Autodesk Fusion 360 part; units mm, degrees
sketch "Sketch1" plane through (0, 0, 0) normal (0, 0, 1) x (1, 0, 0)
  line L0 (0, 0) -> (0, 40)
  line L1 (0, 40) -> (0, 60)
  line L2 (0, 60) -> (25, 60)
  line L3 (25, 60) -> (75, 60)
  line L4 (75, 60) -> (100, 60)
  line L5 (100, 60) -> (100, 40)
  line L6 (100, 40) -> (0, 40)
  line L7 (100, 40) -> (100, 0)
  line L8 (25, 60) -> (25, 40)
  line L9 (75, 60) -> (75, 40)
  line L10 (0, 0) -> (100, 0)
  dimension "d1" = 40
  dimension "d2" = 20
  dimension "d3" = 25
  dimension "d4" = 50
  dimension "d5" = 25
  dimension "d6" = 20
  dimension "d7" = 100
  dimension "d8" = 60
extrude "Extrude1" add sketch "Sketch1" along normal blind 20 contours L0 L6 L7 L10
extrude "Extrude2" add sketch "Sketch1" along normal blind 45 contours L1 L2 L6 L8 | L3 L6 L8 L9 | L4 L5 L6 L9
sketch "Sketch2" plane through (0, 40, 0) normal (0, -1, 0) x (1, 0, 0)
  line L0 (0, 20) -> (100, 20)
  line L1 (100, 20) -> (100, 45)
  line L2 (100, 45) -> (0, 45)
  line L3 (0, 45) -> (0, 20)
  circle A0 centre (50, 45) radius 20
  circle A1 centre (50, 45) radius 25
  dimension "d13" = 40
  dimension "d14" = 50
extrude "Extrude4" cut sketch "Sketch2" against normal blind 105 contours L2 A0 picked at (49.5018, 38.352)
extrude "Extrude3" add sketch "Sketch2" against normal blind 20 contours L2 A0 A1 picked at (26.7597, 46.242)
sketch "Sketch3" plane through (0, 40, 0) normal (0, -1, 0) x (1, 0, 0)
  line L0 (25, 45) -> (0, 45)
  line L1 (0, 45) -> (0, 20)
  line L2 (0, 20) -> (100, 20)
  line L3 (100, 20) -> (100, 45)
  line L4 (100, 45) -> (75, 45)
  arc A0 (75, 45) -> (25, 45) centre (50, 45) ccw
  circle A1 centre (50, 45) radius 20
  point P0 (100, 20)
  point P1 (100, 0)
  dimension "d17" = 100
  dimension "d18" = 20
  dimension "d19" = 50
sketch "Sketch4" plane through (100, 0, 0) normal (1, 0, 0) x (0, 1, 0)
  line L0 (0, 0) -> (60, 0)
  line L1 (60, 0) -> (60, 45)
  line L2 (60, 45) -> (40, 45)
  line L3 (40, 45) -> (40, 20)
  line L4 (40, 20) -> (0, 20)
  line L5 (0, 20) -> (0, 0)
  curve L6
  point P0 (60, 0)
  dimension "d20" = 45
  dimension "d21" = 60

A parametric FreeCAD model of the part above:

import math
import FreeCAD as App
import Part
import Sketcher

V = App.Vector


def add_polygon(sketch, points):
    """Adds a closed chain of lines whose ends are joined by coincident constraints."""
    first, n = sketch.GeometryCount, len(points)
    for a, b in zip(points, points[1:] + points[:1]):
        sketch.addGeometry(Part.LineSegment(App.Vector(*a, 0), App.Vector(*b, 0)), False)
    for i in range(n):
        sketch.addConstraint(Sketcher.Constraint("Coincident", first + i, 2, first + (i + 1) % n, 1))

doc = App.newDocument("Part")
body = doc.addObject("PartDesign::Body", "Body")

sketch1 = doc.addObject("Sketcher::SketchObject", "Sketch")
body.addObject(sketch1)
sketch1.AttachmentSupport = (doc.XY_Plane, [""])
sketch1.MapMode = "FlatFace"
add_polygon(sketch1, [(0, 40), (0, 0), (100, 0), (100, 40)])
sketch1.addConstraint(Sketcher.Constraint("Vertical", 0))
sketch1.addConstraint(Sketcher.Constraint("Horizontal", 1))
sketch1.addConstraint(Sketcher.Constraint("Vertical", 2))
sketch1.addConstraint(Sketcher.Constraint("Horizontal", 3))
sketch1.addConstraint(Sketcher.Constraint("Coincident", 0, 2, -1, 1))
sketch1.addConstraint(Sketcher.Constraint("DistanceX", 1, 1, 1, 2, 100.0))
sketch1.addConstraint(Sketcher.Constraint("DistanceY", 0, 2, 0, 1, 40.0))
pad1 = doc.addObject("PartDesign::Pad", "Pad")
body.addObject(pad1)
pad1.Profile = sketch1
pad1.Length = 20

sketch2 = doc.addObject("Sketcher::SketchObject", "Sketch001")
body.addObject(sketch2)
sketch2.AttachmentSupport = (doc.XY_Plane, [""])
sketch2.MapMode = "FlatFace"
add_polygon(sketch2, [(0, 60), (0, 40), (100, 40), (100, 60)])
sketch2.addConstraint(Sketcher.Constraint("Vertical", 0))
sketch2.addConstraint(Sketcher.Constraint("Horizontal", 1))
sketch2.addConstraint(Sketcher.Constraint("Vertical", 2))
sketch2.addConstraint(Sketcher.Constraint("Horizontal", 3))
sketch2.addConstraint(Sketcher.Constraint("PointOnObject", 0, 2, -2))
sketch2.addConstraint(Sketcher.Constraint("DistanceX", 1, 1, 1, 2, 100.0))
sketch2.addConstraint(Sketcher.Constraint("DistanceY", 0, 2, 0, 1, 20.0))
sketch2.addConstraint(Sketcher.Constraint("DistanceY", -1, 1, 0, 2, 40.0))
pad2 = doc.addObject("PartDesign::Pad", "Pad001")
body.addObject(pad2)
pad2.Profile = sketch2
pad2.Length = 45

sketch3 = doc.addObject("Sketcher::SketchObject", "Sketch002")
body.addObject(sketch3)
sketch3.AttachmentSupport = (doc.XZ_Plane, [""])
sketch3.MapMode = "FlatFace"
sketch3.AttachmentOffset = App.Placement(V(0, 0, -40), App.Rotation())
sketch3.addGeometry(Part.LineSegment(V(70, 45, 0), V(30, 45, 0)), False)
sketch3.addGeometry(Part.ArcOfCircle(Part.Circle(V(50, 45, 0), V(0, 0, 1), 20), math.radians(180), math.radians(360)), False)
sketch3.addConstraint(Sketcher.Constraint("Coincident", 0, 1, 1, 2))
sketch3.addConstraint(Sketcher.Constraint("Coincident", 1, 1, 0, 2))
sketch3.addConstraint(Sketcher.Constraint("Horizontal", 0))
sketch3.addConstraint(Sketcher.Constraint("Horizontal", 1, 3, 0, 1))
sketch3.addConstraint(Sketcher.Constraint("Radius", 1, 20.0))
sketch3.addConstraint(Sketcher.Constraint("DistanceX", -1, 1, 1, 3, 50.0))
sketch3.addConstraint(Sketcher.Constraint("DistanceY", -1, 1, 1, 3, 45.0))
pocket1 = doc.addObject("PartDesign::Pocket", "Pocket")
body.addObject(pocket1)
pocket1.Profile = sketch3
pocket1.Length = 105

sketch4 = doc.addObject("Sketcher::SketchObject", "Sketch003")
body.addObject(sketch4)
sketch4.AttachmentSupport = (doc.XZ_Plane, [""])
sketch4.MapMode = "FlatFace"
sketch4.AttachmentOffset = App.Placement(V(0, 0, -40), App.Rotation())
sketch4.addGeometry(Part.ArcOfCircle(Part.Circle(V(50, 45, 0), V(0, 0, 1), 25), math.radians(0), math.radians(180)), False)
sketch4.addGeometry(Part.LineSegment(V(25, 45, 0), V(30, 45, 0)), False)
sketch4.addGeometry(Part.ArcOfCircle(Part.Circle(V(50, 45, 0), V(0, 0, 1), 20), math.radians(0), math.radians(180)), False)
sketch4.addGeometry(Part.LineSegment(V(70, 45, 0), V(75, 45, 0)), False)
sketch4.addConstraint(Sketcher.Constraint("Coincident", 0, 2, 1, 1))
sketch4.addConstraint(Sketcher.Constraint("Coincident", 1, 2, 2, 2))
sketch4.addConstraint(Sketcher.Constraint("Coincident", 2, 1, 3, 1))
sketch4.addConstraint(Sketcher.Constraint("Coincident", 3, 2, 0, 1))
sketch4.addConstraint(Sketcher.Constraint("Horizontal", 1))
sketch4.addConstraint(Sketcher.Constraint("Horizontal", 3))
sketch4.addConstraint(Sketcher.Constraint("Coincident", 2, 3, 0, 3))
sketch4.addConstraint(Sketcher.Constraint("Horizontal", 2, 3, 0, 2))
sketch4.addConstraint(Sketcher.Constraint("Horizontal", 1, 2, 2, 1))
sketch4.addConstraint(Sketcher.Constraint("Radius", 0, 25.0))
sketch4.addConstraint(Sketcher.Constraint("Radius", 2, 20.0))
sketch4.addConstraint(Sketcher.Constraint("DistanceX", -1, 1, 0, 3, 50.0))
sketch4.addConstraint(Sketcher.Constraint("DistanceY", -1, 1, 0, 3, 45.0))
pad3 = doc.addObject("PartDesign::Pad", "Pad002")
body.addObject(pad3)
pad3.Profile = sketch4
pad3.Length = 20
pad3.Reversed = True

doc.recompute()
